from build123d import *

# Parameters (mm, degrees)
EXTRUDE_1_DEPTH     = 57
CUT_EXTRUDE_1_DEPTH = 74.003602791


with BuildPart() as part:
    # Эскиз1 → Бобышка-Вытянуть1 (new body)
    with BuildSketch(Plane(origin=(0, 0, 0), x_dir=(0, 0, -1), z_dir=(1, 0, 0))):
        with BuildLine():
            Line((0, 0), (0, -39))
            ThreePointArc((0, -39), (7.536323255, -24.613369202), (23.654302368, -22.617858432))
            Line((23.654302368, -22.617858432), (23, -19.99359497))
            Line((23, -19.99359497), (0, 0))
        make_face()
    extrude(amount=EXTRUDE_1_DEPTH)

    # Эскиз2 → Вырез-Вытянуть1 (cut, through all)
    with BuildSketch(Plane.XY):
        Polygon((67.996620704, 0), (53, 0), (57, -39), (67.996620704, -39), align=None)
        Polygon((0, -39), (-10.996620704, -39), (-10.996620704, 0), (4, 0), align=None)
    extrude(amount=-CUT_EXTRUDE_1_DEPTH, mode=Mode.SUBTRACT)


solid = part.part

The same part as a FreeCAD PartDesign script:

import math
import FreeCAD as App
import Part
import Sketcher

V = App.Vector
Q = App.Units.Quantity


def add_polygon(sketch, points):
    """Adds a closed chain of lines whose ends are joined by coincident constraints."""
    first, n = sketch.GeometryCount, len(points)
    for a, b in zip(points, points[1:] + points[:1]):
        sketch.addGeometry(Part.LineSegment(App.Vector(*a, 0), App.Vector(*b, 0)), False)
    for i in range(n):
        sketch.addConstraint(Sketcher.Constraint("Coincident", first + i, 2, first + (i + 1) % n, 1))

doc = App.newDocument("Part")
params = doc.addObject("Spreadsheet::Sheet", "Params")
for row, (alias, value) in enumerate([
    ("sketch1_radius", "17.5 mm"),
    ("sketch1_width", "39 mm"),
    ("pad1_length", "57 mm"),
    ("sketch2_height", "39 mm"),
], start=1):
    params.set(f"A{row}", alias)
    params.set(f"B{row}", "=" + value)
    params.setAlias(f"B{row}", alias)

body = doc.addObject("PartDesign::Body", "Body")

sketch1 = doc.addObject("Sketcher::SketchObject", "Sketch")
body.addObject(sketch1)
sketch1.AttachmentSupport = (doc.YZ_Plane, [""])
sketch1.MapMode = "FlatFace"
sketch1.addGeometry([
    Part.LineSegment(V(0, 0, 0), V(-39, 0, 0)),
    Part.ArcOfCircle(Part.Circle(V(-39, -17.5, 0), V(0, 0, 1), 17.5), math.radians(-21), math.radians(90)),
    Part.LineSegment(V(-22.6, -23.7, 0), V(-20, -23, 0)),
    Part.LineSegment(V(-20, -23, 0), V(0, 0, 0)),
], False)
sketch1.addConstraint([
    Sketcher.Constraint("Tangent", 0, 2, 1, 2),
    Sketcher.Constraint("Coincident", 1, 1, 2, 1),
    Sketcher.Constraint("Coincident", 2, 2, 3, 1),
    Sketcher.Constraint("Coincident", 3, 2, 0, 1),
    Sketcher.Constraint("Horizontal", 0),
    Sketcher.Constraint("Coincident", 3, 2, -1, 1),
    Sketcher.Constraint("Radius", 1, 17.5),
    Sketcher.Constraint("DistanceX", 0, 2, 0, 1, 39.0),
    Sketcher.Constraint("Angle", 2, Q("14 deg")),
    Sketcher.Constraint("Angle", 3, Q("49 deg")),
    Sketcher.Constraint("DistanceY", 2, 2, -1, 1, 23.0),
])
sketch1.setExpression("Constraints[6]", "Params.sketch1_radius")
sketch1.setExpression("Constraints[7]", "Params.sketch1_width")
pad1 = doc.addObject("PartDesign::Pad", "Pad")
body.addObject(pad1)
pad1.Profile = sketch1
pad1.setExpression("Length", "Params.pad1_length")

sketch2 = doc.addObject("Sketcher::SketchObject", "Sketch001")
body.addObject(sketch2)
sketch2.AttachmentSupport = (doc.XY_Plane, [""])
sketch2.MapMode = "FlatFace"
add_polygon(sketch2, [(68, 0), (53, 0), (57, -39), (68, -39)])
add_polygon(sketch2, [(-11, -39), (0, -39), (4, 0), (-11, 0)])
sketch2.addConstraint([
    Sketcher.Constraint("Horizontal", 0),
    Sketcher.Constraint("Horizontal", 2),
    Sketcher.Constraint("Vertical", 3),
    Sketcher.Constraint("Horizontal", 4),
    Sketcher.Constraint("Horizontal", 6),
    Sketcher.Constraint("Vertical", 7),
    Sketcher.Constraint("PointOnObject", 0, 2, -1),
    Sketcher.Constraint("PointOnObject", 4, 2, -2),
    Sketcher.Constraint("PointOnObject", 5, 2, -1),
    Sketcher.Constraint("Horizontal", 2, 2, 4, 2),
    Sketcher.Constraint("Equal", 2, 4),
    Sketcher.Constraint("Equal", 0, 6),
    Sketcher.Constraint("DistanceY", 3, 1, 3, 2, 39.0),
    Sketcher.Constraint("DistanceX", -1, 1, 0, 2, 53.0),
    Sketcher.Constraint("DistanceX", -1, 1, 1, 2, 57.0),
    Sketcher.Constraint("DistanceX", 0, 2, 0, 1, 14.996621),
])
sketch2.setExpression("Constraints[20]", "Params.sketch2_height")
pocket1 = doc.addObject("PartDesign::Pocket", "Pocket")
body.addObject(pocket1)
pocket1.Profile = sketch2
pocket1.Type = "ThroughAll"

doc.recompute()
